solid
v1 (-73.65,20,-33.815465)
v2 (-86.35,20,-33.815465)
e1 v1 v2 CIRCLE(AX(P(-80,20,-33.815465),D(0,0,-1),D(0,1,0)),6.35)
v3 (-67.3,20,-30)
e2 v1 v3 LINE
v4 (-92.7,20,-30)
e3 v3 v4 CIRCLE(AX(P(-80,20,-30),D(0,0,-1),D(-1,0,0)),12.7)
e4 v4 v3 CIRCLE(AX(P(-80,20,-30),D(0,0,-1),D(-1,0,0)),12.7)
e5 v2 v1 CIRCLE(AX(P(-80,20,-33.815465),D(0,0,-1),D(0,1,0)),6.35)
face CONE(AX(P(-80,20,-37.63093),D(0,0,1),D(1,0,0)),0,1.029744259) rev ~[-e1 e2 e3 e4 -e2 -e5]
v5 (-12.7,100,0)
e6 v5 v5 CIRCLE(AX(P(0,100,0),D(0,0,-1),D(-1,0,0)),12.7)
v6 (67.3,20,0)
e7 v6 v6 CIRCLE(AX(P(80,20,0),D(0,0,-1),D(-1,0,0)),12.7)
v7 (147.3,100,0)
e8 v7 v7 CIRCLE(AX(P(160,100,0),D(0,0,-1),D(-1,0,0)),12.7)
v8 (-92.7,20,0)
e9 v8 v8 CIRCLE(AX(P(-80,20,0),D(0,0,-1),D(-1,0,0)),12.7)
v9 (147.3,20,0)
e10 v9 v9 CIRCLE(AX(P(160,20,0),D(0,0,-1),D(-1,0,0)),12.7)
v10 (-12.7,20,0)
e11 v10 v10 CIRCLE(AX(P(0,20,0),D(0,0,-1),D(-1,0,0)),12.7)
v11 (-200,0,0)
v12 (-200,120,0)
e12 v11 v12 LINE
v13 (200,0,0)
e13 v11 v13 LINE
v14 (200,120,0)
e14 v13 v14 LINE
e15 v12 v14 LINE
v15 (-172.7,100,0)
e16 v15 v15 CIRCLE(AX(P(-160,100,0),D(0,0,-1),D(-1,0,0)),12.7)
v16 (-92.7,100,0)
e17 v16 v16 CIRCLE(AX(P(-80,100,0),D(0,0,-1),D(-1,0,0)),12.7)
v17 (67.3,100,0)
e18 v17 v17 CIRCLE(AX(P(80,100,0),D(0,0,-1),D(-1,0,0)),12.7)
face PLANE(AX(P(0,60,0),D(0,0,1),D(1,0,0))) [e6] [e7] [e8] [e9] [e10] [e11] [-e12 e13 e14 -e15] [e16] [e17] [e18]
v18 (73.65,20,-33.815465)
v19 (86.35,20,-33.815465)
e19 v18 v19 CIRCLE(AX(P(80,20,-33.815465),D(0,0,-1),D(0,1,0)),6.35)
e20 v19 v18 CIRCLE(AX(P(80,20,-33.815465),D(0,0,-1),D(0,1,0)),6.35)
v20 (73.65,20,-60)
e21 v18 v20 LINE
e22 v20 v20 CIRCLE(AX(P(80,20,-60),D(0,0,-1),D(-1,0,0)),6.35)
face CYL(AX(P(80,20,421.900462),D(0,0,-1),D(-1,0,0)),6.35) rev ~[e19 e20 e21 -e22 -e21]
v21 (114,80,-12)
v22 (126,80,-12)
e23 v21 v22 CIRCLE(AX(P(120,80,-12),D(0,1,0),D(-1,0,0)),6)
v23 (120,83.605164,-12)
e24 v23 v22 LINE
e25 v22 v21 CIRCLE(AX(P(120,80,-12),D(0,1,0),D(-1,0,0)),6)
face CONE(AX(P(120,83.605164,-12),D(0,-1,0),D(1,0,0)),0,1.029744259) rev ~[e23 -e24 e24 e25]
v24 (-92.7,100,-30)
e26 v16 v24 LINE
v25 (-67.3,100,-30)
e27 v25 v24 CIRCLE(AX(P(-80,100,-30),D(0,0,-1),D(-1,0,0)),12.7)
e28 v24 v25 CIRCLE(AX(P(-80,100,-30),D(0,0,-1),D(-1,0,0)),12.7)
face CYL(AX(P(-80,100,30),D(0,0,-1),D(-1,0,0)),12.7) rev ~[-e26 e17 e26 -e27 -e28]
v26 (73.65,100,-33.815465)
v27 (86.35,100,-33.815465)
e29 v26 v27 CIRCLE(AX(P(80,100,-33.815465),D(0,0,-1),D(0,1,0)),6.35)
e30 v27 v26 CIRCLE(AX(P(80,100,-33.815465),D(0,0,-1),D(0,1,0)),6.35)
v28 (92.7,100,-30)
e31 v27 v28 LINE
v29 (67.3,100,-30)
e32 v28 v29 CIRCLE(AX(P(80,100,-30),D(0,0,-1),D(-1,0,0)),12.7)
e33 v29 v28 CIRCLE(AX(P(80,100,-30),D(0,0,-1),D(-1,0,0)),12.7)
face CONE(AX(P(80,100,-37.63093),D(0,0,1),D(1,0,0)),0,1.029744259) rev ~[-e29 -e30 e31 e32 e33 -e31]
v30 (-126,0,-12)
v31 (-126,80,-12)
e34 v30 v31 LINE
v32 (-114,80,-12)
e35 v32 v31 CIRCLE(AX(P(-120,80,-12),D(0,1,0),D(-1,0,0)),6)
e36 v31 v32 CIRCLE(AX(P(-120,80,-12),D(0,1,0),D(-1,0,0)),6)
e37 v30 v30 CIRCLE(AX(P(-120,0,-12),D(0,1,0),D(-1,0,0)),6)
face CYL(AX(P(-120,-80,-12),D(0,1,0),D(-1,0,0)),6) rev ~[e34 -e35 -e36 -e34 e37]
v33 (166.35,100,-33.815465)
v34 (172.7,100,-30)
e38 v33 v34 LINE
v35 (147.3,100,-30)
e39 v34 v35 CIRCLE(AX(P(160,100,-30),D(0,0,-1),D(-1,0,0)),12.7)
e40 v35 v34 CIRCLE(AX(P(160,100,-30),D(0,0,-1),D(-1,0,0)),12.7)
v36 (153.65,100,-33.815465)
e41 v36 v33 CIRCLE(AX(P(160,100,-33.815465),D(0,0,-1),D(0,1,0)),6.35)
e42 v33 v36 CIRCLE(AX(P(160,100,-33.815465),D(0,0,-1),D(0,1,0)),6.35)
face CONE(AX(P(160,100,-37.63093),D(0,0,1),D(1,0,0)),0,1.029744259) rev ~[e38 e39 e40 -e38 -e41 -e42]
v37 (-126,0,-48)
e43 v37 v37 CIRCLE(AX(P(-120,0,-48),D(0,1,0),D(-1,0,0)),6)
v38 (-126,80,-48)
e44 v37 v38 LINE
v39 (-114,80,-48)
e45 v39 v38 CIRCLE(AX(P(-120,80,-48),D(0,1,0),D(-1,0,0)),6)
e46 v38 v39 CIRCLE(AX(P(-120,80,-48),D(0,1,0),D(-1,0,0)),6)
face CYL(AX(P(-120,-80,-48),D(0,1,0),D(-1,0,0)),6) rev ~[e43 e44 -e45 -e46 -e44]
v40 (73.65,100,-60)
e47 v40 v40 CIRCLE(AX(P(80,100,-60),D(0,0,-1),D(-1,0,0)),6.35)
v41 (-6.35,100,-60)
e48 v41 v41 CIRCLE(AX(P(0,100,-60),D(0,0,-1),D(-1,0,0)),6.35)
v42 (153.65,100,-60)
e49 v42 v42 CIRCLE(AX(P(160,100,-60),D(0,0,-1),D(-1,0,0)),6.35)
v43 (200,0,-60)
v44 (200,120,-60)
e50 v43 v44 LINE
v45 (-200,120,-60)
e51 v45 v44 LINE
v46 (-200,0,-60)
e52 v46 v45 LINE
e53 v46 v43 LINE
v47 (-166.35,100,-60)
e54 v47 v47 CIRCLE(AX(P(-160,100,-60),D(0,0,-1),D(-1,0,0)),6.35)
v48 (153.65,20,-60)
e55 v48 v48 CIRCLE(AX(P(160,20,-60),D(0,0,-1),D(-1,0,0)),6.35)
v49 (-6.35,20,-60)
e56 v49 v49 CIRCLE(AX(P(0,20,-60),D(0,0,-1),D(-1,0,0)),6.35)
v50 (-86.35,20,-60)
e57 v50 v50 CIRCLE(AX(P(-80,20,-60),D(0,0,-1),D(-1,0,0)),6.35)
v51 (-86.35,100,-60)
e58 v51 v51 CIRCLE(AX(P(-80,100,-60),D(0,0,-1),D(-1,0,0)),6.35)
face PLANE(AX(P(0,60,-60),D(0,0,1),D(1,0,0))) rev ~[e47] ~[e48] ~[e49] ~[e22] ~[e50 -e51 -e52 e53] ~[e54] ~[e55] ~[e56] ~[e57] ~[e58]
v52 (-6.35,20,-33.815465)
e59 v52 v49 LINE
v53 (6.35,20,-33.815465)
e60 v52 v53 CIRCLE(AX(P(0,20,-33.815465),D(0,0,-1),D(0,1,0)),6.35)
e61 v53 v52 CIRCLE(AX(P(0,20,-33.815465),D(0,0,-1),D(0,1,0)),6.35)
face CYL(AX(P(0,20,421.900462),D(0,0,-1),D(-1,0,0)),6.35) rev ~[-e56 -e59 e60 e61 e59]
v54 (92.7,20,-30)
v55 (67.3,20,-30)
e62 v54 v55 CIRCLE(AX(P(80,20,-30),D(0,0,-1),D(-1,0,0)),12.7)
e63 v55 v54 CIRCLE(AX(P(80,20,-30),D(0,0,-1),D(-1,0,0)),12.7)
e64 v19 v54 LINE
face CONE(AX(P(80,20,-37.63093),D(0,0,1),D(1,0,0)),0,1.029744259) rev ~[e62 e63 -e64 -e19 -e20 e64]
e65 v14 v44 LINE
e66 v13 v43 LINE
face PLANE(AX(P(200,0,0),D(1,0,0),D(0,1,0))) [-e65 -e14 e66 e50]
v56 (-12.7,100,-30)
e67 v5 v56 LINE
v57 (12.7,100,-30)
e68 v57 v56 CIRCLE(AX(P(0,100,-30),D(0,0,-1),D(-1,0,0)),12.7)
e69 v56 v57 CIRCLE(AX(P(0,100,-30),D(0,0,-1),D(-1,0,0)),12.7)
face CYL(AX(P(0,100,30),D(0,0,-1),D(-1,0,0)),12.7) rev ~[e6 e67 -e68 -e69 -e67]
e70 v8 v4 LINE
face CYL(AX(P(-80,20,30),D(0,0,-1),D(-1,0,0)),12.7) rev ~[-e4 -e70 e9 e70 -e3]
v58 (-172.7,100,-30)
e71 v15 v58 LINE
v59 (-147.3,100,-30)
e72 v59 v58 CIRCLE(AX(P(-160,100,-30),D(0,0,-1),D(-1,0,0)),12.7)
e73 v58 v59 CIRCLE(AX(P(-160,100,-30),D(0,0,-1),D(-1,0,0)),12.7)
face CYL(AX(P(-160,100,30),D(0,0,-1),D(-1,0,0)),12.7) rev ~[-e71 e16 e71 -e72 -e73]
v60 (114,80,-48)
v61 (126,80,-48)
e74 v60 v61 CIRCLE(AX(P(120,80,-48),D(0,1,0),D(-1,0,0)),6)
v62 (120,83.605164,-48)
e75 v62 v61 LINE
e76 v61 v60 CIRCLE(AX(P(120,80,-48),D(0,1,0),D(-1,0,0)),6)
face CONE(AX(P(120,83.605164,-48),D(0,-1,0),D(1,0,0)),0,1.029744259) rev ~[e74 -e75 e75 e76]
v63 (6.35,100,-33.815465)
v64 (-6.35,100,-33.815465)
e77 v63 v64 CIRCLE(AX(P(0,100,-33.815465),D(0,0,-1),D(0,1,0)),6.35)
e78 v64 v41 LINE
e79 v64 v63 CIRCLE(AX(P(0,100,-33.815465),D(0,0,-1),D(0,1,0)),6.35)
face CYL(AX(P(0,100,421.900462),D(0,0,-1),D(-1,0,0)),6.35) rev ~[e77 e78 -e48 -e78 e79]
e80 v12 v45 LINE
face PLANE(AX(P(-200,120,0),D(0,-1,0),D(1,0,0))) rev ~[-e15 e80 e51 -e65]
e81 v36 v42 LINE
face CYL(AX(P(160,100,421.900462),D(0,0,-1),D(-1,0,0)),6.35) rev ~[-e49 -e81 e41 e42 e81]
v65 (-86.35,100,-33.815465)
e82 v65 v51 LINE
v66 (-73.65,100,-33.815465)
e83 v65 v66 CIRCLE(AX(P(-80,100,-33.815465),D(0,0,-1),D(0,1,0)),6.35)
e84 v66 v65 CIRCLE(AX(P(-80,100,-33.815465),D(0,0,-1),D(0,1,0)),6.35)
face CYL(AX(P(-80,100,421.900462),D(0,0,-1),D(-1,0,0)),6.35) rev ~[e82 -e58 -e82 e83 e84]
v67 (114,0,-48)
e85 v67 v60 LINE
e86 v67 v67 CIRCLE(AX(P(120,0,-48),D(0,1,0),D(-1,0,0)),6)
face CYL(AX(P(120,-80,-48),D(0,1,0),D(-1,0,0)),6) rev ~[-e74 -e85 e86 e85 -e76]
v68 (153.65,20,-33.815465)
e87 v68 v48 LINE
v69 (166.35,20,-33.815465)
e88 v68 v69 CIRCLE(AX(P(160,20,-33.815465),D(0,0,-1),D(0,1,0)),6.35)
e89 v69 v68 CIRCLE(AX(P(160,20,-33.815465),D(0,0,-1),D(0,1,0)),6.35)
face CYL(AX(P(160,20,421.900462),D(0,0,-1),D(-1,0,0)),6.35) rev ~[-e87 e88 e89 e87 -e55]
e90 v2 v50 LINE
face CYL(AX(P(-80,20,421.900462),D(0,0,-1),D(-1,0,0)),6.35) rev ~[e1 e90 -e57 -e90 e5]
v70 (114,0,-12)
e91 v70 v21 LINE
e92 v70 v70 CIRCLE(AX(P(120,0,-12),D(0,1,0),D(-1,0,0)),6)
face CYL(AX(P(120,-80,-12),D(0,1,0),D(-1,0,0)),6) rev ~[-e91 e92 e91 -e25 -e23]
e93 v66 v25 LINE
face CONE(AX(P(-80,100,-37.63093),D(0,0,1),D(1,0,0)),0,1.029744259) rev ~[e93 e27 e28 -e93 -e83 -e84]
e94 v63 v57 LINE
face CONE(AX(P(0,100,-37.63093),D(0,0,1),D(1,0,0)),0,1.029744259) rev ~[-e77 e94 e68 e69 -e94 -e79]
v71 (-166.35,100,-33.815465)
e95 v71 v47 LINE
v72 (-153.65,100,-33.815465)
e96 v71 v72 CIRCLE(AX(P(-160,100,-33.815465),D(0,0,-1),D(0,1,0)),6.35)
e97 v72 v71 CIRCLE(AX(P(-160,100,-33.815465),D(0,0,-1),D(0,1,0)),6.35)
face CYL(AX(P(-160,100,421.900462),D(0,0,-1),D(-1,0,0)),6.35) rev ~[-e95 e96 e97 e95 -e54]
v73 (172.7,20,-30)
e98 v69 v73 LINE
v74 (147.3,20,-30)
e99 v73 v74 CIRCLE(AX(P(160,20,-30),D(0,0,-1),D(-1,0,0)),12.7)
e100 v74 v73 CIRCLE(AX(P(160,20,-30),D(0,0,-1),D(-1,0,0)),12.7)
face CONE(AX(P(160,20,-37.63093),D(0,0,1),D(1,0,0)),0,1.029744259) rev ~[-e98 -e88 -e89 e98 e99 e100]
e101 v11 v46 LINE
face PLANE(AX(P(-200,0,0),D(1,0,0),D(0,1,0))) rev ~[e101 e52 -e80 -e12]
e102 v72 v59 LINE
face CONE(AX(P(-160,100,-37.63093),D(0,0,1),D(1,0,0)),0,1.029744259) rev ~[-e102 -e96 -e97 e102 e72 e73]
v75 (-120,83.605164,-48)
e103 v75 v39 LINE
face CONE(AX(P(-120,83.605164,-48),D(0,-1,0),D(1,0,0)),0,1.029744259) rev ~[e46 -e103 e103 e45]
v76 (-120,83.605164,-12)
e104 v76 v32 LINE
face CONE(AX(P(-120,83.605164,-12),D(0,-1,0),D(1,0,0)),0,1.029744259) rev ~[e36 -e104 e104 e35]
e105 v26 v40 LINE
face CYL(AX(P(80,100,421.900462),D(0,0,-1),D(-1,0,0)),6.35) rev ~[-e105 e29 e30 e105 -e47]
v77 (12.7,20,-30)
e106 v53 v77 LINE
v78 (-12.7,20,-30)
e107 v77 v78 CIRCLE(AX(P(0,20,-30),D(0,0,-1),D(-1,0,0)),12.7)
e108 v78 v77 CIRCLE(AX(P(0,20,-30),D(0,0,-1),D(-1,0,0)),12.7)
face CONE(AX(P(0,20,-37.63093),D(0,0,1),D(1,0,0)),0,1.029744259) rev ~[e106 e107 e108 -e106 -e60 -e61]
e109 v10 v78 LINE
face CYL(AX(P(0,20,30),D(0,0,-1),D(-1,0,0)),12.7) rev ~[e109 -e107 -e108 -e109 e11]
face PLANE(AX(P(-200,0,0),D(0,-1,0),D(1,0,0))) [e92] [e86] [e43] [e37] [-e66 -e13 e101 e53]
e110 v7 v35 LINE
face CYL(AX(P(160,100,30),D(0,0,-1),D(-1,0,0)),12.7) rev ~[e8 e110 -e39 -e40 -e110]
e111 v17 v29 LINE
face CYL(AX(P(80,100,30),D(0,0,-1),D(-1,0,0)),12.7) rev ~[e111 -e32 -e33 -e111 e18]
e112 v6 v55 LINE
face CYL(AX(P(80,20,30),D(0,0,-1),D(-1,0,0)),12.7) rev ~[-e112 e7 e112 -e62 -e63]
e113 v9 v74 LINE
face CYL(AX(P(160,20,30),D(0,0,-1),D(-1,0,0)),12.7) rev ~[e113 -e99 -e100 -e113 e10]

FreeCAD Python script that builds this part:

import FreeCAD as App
import Part
import Sketcher

V = App.Vector
Q = App.Units.Quantity


def add_polygon(sketch, points):
    """Adds a closed chain of lines whose ends are joined by coincident constraints."""
    first, n = sketch.GeometryCount, len(points)
    for a, b in zip(points, points[1:] + points[:1]):
        sketch.addGeometry(Part.LineSegment(App.Vector(*a, 0), App.Vector(*b, 0)), False)
    for i in range(n):
        sketch.addConstraint(Sketcher.Constraint("Coincident", first + i, 2, first + (i + 1) % n, 1))

doc = App.newDocument("Part")
body = doc.addObject("PartDesign::Body", "Body")

sketch1 = doc.addObject("Sketcher::SketchObject", "Sketch")
body.addObject(sketch1)
sketch1.AttachmentSupport = (doc.XY_Plane, [""])
sketch1.MapMode = "FlatFace"
add_polygon(sketch1, [(-200, 120), (-200, 0), (200, 0), (200, 120)])
sketch1.addConstraint(Sketcher.Constraint("Vertical", 0))
sketch1.addConstraint(Sketcher.Constraint("Horizontal", 1))
sketch1.addConstraint(Sketcher.Constraint("Vertical", 2))
sketch1.addConstraint(Sketcher.Constraint("Horizontal", 3))
sketch1.addConstraint(Sketcher.Constraint("Symmetric", 0, 2, 1, 2, -1, 1))
sketch1.addConstraint(Sketcher.Constraint("DistanceX", 1, 1, 1, 2, Q("400 mm")))
sketch1.addConstraint(Sketcher.Constraint("DistanceY", 0, 2, 0, 1, Q("120 mm")))
pad1 = doc.addObject("PartDesign::Pad", "Pad")
body.addObject(pad1)
pad1.Profile = sketch1
pad1.Length = 60
pad1.Reversed = True

sketch2 = doc.addObject("Sketcher::SketchObject", "Sketch001")
body.addObject(sketch2)
sketch2.AttachmentSupport = (doc.XZ_Plane, [""])
sketch2.MapMode = "FlatFace"
sketch2.addGeometry(Part.Circle(V(-120, -12, 0), V(0, 0, 1), 6), False)
sketch2.addGeometry(Part.Circle(V(-120, -48, 0), V(0, 0, 1), 6), False)
sketch2.addGeometry(Part.Circle(V(120, -48, 0), V(0, 0, 1), 6), False)
sketch2.addGeometry(Part.Circle(V(120, -12, 0), V(0, 0, 1), 6), False)
sketch2.addConstraint(Sketcher.Constraint("Equal", 0, 1))
sketch2.addConstraint(Sketcher.Constraint("Equal", 1, 2))
sketch2.addConstraint(Sketcher.Constraint("Equal", 2, 3))
sketch2.addConstraint(Sketcher.Constraint("Symmetric", 1, 3, 2, 3, -2))
sketch2.addConstraint(Sketcher.Constraint("Symmetric", 0, 3, 3, 3, -2))
sketch2.addConstraint(Sketcher.Constraint("Vertical", 0, 3, 1, 3))
sketch2.addConstraint(Sketcher.Constraint("Diameter", 0, Q("12 mm")))
sketch2.addConstraint(Sketcher.Constraint("DistanceX", 0, 3, -1, 1, Q("120 mm")))
sketch2.addConstraint(Sketcher.Constraint("DistanceY", 0, 3, -1, 1, Q("12 mm")))
sketch2.addConstraint(Sketcher.Constraint("DistanceY", 1, 3, -1, 1, Q("48 mm")))
doc.recompute()
hole = doc.addObject("PartDesign::Hole", "Hole")
body.addObject(hole)
hole.Profile = sketch2
hole.ThreadType = "None"
hole.Diameter = 12
hole.DepthType = "Dimension"
hole.Depth = 80
hole.DrillPoint = "Angled"
hole.DrillPointAngle = 118

sketch3 = doc.addObject("Sketcher::SketchObject", "Sketch002")
body.addObject(sketch3)
sketch3.AttachmentSupport = (doc.XY_Plane, [""])
sketch3.MapMode = "FlatFace"
sketch3.addGeometry(Part.Circle(V(-160, 100, 0), V(0, 0, 1), 13), False)
sketch3.addGeometry(Part.Circle(V(-80, 100, 0), V(0, 0, 1), 13), False)
sketch3.addGeometry(Part.Circle(V(0, 100, 0), V(0, 0, 1), 13), False)
sketch3.addGeometry(Part.Circle(V(80, 100, 0), V(0, 0, 1), 13), False)
sketch3.addGeometry(Part.Circle(V(160, 100, 0), V(0, 0, 1), 13), False)
sketch3.addGeometry(Part.Circle(V(160, 20, 0), V(0, 0, 1), 13), False)
sketch3.addGeometry(Part.Circle(V(80, 20, 0), V(0, 0, 1), 13), False)
sketch3.addGeometry(Part.Circle(V(0, 20, 0), V(0, 0, 1), 13), False)
sketch3.addGeometry(Part.Circle(V(-80, 20, 0), V(0, 0, 1), 13), False)
sketch3.addConstraint(Sketcher.Constraint("Equal", 0, 1))
sketch3.addConstraint(Sketcher.Constraint("Equal", 1, 2))
sketch3.addConstraint(Sketcher.Constraint("Equal", 2, 3))
sketch3.addConstraint(Sketcher.Constraint("Equal", 3, 4))
sketch3.addConstraint(Sketcher.Constraint("Equal", 4, 5))
sketch3.addConstraint(Sketcher.Constraint("Equal", 5, 6))
sketch3.addConstraint(Sketcher.Constraint("Equal", 6, 7))
sketch3.addConstraint(Sketcher.Constraint("Equal", 7, 8))
sketch3.addConstraint(Sketcher.Constraint("Symmetric", 1, 3, 3, 3, -2))
sketch3.addConstraint(Sketcher.Constraint("Symmetric", 0, 3, 4, 3, -2))
sketch3.addConstraint(Sketcher.Constraint("Symmetric", 6, 3, 8, 3, -2))
sketch3.addConstraint(Sketcher.Constraint("PointOnObject", 2, 3, -2))
sketch3.addConstraint(Sketcher.Constraint("PointOnObject", 7, 3, -2))
sketch3.addConstraint(Sketcher.Constraint("Horizontal", 0, 3, 1, 3))
sketch3.addConstraint(Sketcher.Constraint("Horizontal", 1, 3, 2, 3))
sketch3.addConstraint(Sketcher.Constraint("Horizontal", 5, 3, 6, 3))
sketch3.addConstraint(Sketcher.Constraint("Horizontal", 6, 3, 7, 3))
sketch3.addConstraint(Sketcher.Constraint("Vertical", 4, 3, 5, 3))
sketch3.addConstraint(Sketcher.Constraint("Vertical", 3, 3, 6, 3))
sketch3.addConstraint(Sketcher.Constraint("Diameter", 0, Q("25.4 mm")))
sketch3.addConstraint(Sketcher.Constraint("DistanceX", 0, 3, -1, 1, Q("160 mm")))
sketch3.addConstraint(Sketcher.Constraint("DistanceY", -1, 1, 0, 3, Q("100 mm")))
sketch3.addConstraint(Sketcher.Constraint("DistanceX", 1, 3, -1, 1, Q("80 mm")))
sketch3.addConstraint(Sketcher.Constraint("DistanceY", -1, 1, 5, 3, Q("20 mm")))
doc.recompute()
hole2 = doc.addObject("PartDesign::Hole", "Hole001")
body.addObject(hole2)
hole2.Profile = sketch3
hole2.ThreadType = "None"
hole2.Diameter = 25.4
hole2.DepthType = "Dimension"
hole2.Depth = 30
hole2.DrillPoint = "Angled"
hole2.DrillPointAngle = 118

sketch4 = doc.addObject("Sketcher::SketchObject", "Sketch003")
body.addObject(sketch4)
sketch4.AttachmentSupport = (doc.XY_Plane, [""])
sketch4.MapMode = "FlatFace"
sketch4.addGeometry(Part.Circle(V(-80, 20, 0), V(0, 0, 1), 6), False)
sketch4.addGeometry(Part.Circle(V(-80, 100, 0), V(0, 0, 1), 6), False)
sketch4.addGeometry(Part.Circle(V(-160, 100, 0), V(0, 0, 1), 6), False)
sketch4.addGeometry(Part.Circle(V(0, 100, 0), V(0, 0, 1), 6), False)
sketch4.addGeometry(Part.Circle(V(0, 20, 0), V(0, 0, 1), 6), False)
sketch4.addGeometry(Part.Circle(V(80, 20, 0), V(0, 0, 1), 6), False)
sketch4.addGeometry(Part.Circle(V(80, 100, 0), V(0, 0, 1), 6), False)
sketch4.addGeometry(Part.Circle(V(160, 100, 0), V(0, 0, 1), 6), False)
sketch4.addGeometry(Part.Circle(V(160, 20, 0), V(0, 0, 1), 6), False)
sketch4.addConstraint(Sketcher.Constraint("Equal", 0, 1))
sketch4.addConstraint(Sketcher.Constraint("Equal", 1, 2))
sketch4.addConstraint(Sketcher.Constraint("Equal", 2, 3))
sketch4.addConstraint(Sketcher.Constraint("Equal", 3, 4))
sketch4.addConstraint(Sketcher.Constraint("Equal", 4, 5))
sketch4.addConstraint(Sketcher.Constraint("Equal", 5, 6))
sketch4.addConstraint(Sketcher.Constraint("Equal", 6, 7))
sketch4.addConstraint(Sketcher.Constraint("Equal", 7, 8))
sketch4.addConstraint(Sketcher.Constraint("Symmetric", 0, 3, 5, 3, -2))
sketch4.addConstraint(Sketcher.Constraint("Symmetric", 1, 3, 6, 3, -2))
sketch4.addConstraint(Sketcher.Constraint("Symmetric", 2, 3, 7, 3, -2))
sketch4.addConstraint(Sketcher.Constraint("PointOnObject", 3, 3, -2))
sketch4.addConstraint(Sketcher.Constraint("PointOnObject", 4, 3, -2))
sketch4.addConstraint(Sketcher.Constraint("Horizontal", 1, 3, 2, 3))
sketch4.addConstraint(Sketcher.Constraint("Horizontal", 2, 3, 3, 3))
sketch4.addConstraint(Sketcher.Constraint("Horizontal", 0, 3, 4, 3))
sketch4.addConstraint(Sketcher.Constraint("Horizontal", 5, 3, 8, 3))
sketch4.addConstraint(Sketcher.Constraint("Vertical", 0, 3, 1, 3))
sketch4.addConstraint(Sketcher.Constraint("Vertical", 7, 3, 8, 3))
sketch4.addConstraint(Sketcher.Constraint("Diameter", 0, Q("12.7 mm")))
sketch4.addConstraint(Sketcher.Constraint("DistanceX", 0, 3, -1, 1, Q("80 mm")))
sketch4.addConstraint(Sketcher.Constraint("DistanceY", -1, 1, 0, 3, Q("20 mm")))
sketch4.addConstraint(Sketcher.Constraint("DistanceY", -1, 1, 1, 3, Q("100 mm")))
sketch4.addConstraint(Sketcher.Constraint("DistanceX", 2, 3, -1, 1, Q("160 mm")))
doc.recompute()
hole3 = doc.addObject("PartDesign::Hole", "Hole002")
body.addObject(hole3)
hole3.Profile = sketch4
hole3.ThreadType = "None"
hole3.Diameter = 12.7
hole3.DepthType = "ThroughAll"

doc.recompute()
